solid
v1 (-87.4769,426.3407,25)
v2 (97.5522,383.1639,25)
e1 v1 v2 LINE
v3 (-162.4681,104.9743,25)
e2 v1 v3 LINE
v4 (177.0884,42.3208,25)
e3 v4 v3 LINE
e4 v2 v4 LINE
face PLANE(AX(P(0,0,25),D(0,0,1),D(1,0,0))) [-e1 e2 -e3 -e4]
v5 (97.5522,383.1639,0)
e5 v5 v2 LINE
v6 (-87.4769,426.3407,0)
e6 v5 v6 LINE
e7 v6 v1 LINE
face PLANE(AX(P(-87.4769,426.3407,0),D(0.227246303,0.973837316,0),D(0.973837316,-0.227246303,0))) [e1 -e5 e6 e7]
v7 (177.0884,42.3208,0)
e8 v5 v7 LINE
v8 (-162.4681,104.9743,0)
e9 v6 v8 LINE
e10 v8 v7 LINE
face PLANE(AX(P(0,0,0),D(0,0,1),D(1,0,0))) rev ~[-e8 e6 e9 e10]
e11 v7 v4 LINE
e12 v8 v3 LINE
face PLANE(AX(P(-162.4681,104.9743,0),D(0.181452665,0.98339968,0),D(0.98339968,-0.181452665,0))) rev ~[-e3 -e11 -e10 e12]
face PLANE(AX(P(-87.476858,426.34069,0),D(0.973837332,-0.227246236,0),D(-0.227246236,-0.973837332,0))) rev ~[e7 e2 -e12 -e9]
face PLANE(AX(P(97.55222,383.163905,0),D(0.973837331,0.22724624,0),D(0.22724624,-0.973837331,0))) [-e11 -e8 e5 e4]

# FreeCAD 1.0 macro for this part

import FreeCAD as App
import Part
import Sketcher
Q = App.Units.Quantity

doc = App.newDocument("Part")
body = doc.addObject("PartDesign::Body", "Body")

# Sketch on XY plane
sketch1 = doc.addObject("Sketcher::SketchObject", "Sketch")
body.addObject(sketch1)
sketch1.AttachmentSupport = (doc.XY_Plane, [""])
sketch1.MapMode = "FlatFace"
sketch1.addGeometry([
    Part.LineSegment(App.Vector(-87, 426, 0), App.Vector(-162, 105, 0)),
    Part.LineSegment(App.Vector(-162, 105, 0), App.Vector(177, 42, 0)),
    Part.LineSegment(App.Vector(177, 42, 0), App.Vector(98, 383, 0)),
    Part.LineSegment(App.Vector(98, 383, 0), App.Vector(-87, 426, 0)),
], False)
sketch1.addConstraint([
    Sketcher.Constraint("Coincident", 0, 2, 1, 1),
    Sketcher.Constraint("Coincident", 1, 2, 2, 1),
    Sketcher.Constraint("Coincident", 2, 2, 3, 1),
    Sketcher.Constraint("Coincident", 3, 2, 0, 1),
    Sketcher.Constraint("Perpendicular", 0, 3),
    Sketcher.Constraint("Distance", 0, Q("330 mm")),
    Sketcher.Constraint("Distance", 2, Q("350 mm")),
    Sketcher.Constraint("Distance", 3, Q("190 mm")),
    Sketcher.Constraint("DistanceY", 1, 2, 3, 2, Q("384.02 mm")),
    Sketcher.Constraint("DistanceY", -1, 1, 2, 2, Q("383.164 mm")),
    Sketcher.Constraint("DistanceX", 3, 2, -1, 1, Q("87.477 mm")),
    Sketcher.Constraint("DistanceY", 1, 2, 2, 2, Q("340.843 mm")),
])
pad1 = doc.addObject("PartDesign::Pad", "Pad")
body.addObject(pad1)
pad1.Profile = sketch1
pad1.Length = 25

doc.recompute()
